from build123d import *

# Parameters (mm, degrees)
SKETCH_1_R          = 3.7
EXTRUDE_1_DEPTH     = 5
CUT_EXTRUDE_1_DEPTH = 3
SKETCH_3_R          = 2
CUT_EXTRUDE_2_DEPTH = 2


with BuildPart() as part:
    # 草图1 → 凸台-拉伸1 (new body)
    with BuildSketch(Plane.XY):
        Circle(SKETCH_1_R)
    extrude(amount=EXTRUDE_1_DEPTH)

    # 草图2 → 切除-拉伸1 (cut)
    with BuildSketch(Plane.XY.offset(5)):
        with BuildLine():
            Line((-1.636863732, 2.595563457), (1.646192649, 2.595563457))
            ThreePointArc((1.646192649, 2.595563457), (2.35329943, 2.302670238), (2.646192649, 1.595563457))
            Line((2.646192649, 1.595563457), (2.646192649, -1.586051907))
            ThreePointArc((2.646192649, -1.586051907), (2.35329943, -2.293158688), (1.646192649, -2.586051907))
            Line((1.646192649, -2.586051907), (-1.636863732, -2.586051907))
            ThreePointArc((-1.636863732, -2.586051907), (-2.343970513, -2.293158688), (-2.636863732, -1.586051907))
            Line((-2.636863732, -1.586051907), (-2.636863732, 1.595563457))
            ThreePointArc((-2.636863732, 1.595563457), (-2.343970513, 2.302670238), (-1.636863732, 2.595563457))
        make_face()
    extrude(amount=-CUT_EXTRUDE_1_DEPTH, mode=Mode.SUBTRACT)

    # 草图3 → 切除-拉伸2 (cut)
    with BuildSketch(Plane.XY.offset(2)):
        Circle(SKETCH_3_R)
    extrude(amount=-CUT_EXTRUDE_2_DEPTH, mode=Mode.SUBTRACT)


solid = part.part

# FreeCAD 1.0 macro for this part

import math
import FreeCAD as App
import Part
import Sketcher

V = App.Vector
Q = App.Units.Quantity

doc = App.newDocument("Part")
body = doc.addObject("PartDesign::Body", "Body")

# Sketch on XY plane
sketch1 = doc.addObject("Sketcher::SketchObject", "Sketch")
body.addObject(sketch1)
sketch1.AttachmentSupport = (doc.XY_Plane, [""])
sketch1.MapMode = "FlatFace"
sketch1.addGeometry(Part.Circle(V(0, 0, 0), V(0, 0, 1), 3.7), False)
sketch1.addConstraint(Sketcher.Constraint("Coincident", 0, 3, -1, 1))
sketch1.addConstraint(Sketcher.Constraint("Diameter", 0, Q("7.4 mm")))
pad1 = doc.addObject("PartDesign::Pad", "Pad")
body.addObject(pad1)
pad1.Profile = sketch1
pad1.Length = 5

# Sketch on XY plane
sketch2 = doc.addObject("Sketcher::SketchObject", "Sketch001")
body.addObject(sketch2)
sketch2.AttachmentSupport = (doc.XY_Plane, [""])
sketch2.MapMode = "FlatFace"
sketch2.AttachmentOffset = App.Placement(V(0, 0, 5), App.Rotation())
sketch2.addGeometry(Part.LineSegment(V(1.6, 2.6, 0), V(-1.6, 2.6, 0)), False)
sketch2.addGeometry(Part.ArcOfCircle(Part.Circle(V(-1.6, 1.6, 0), V(0, 0, 1), 1), math.radians(90), math.radians(180)), False)
sketch2.addGeometry(Part.LineSegment(V(-2.6, 1.6, 0), V(-2.6, -1.6, 0)), False)
sketch2.addGeometry(Part.ArcOfCircle(Part.Circle(V(-1.6, -1.6, 0), V(0, 0, 1), 1), math.radians(-180), math.radians(-90)), False)
sketch2.addGeometry(Part.LineSegment(V(-1.6, -2.6, 0), V(1.6, -2.6, 0)), False)
sketch2.addGeometry(Part.ArcOfCircle(Part.Circle(V(1.6, -1.6, 0), V(0, 0, 1), 1), math.radians(-90), math.radians(0)), False)
sketch2.addGeometry(Part.LineSegment(V(2.6, -1.6, 0), V(2.6, 1.6, 0)), False)
sketch2.addGeometry(Part.ArcOfCircle(Part.Circle(V(1.6, 1.6, 0), V(0, 0, 1), 1), math.radians(0), math.radians(90)), False)
sketch2.addConstraint(Sketcher.Constraint("Tangent", 0, 2, 1, 1))
sketch2.addConstraint(Sketcher.Constraint("Tangent", 1, 2, 2, 1))
sketch2.addConstraint(Sketcher.Constraint("Tangent", 2, 2, 3, 1))
sketch2.addConstraint(Sketcher.Constraint("Tangent", 3, 2, 4, 1))
sketch2.addConstraint(Sketcher.Constraint("Tangent", 4, 2, 5, 1))
sketch2.addConstraint(Sketcher.Constraint("Tangent", 5, 2, 6, 1))
sketch2.addConstraint(Sketcher.Constraint("Tangent", 6, 2, 7, 1))
sketch2.addConstraint(Sketcher.Constraint("Tangent", 7, 2, 0, 1))
sketch2.addConstraint(Sketcher.Constraint("Horizontal", 0))
sketch2.addConstraint(Sketcher.Constraint("Vertical", 2))
sketch2.addConstraint(Sketcher.Constraint("Horizontal", 4))
sketch2.addConstraint(Sketcher.Constraint("Vertical", 6))
sketch2.addConstraint(Sketcher.Constraint("Equal", 1, 3))
sketch2.addConstraint(Sketcher.Constraint("Equal", 3, 5))
sketch2.addConstraint(Sketcher.Constraint("Equal", 5, 7))
sketch2.addConstraint(Sketcher.Constraint("Radius", 1, Q("1 mm")))
sketch2.addConstraint(Sketcher.Constraint("DistanceX", 0, 2, 0, 1, Q("3.283056 mm")))
sketch2.addConstraint(Sketcher.Constraint("DistanceY", 2, 2, 2, 1, Q("3.181615 mm")))
sketch2.addConstraint(Sketcher.Constraint("DistanceY", 3, 3, -1, 1, Q("1.586052 mm")))
sketch2.addConstraint(Sketcher.Constraint("DistanceX", 1, 3, -1, 1, Q("1.636864 mm")))
pocket1 = doc.addObject("PartDesign::Pocket", "Pocket")
body.addObject(pocket1)
pocket1.Profile = sketch2
pocket1.Length = 3

# Sketch on XY plane
sketch3 = doc.addObject("Sketcher::SketchObject", "Sketch002")
body.addObject(sketch3)
sketch3.AttachmentSupport = (doc.XY_Plane, [""])
sketch3.MapMode = "FlatFace"
sketch3.AttachmentOffset = App.Placement(V(0, 0, 2), App.Rotation())
sketch3.addGeometry(Part.Circle(V(0, 0, 0), V(0, 0, 1), 2), False)
sketch3.addConstraint(Sketcher.Constraint("Coincident", 0, 3, -1, 1))
sketch3.addConstraint(Sketcher.Constraint("Diameter", 0, Q("4 mm")))
pocket2 = doc.addObject("PartDesign::Pocket", "Pocket001")
body.addObject(pocket2)
pocket2.Profile = sketch3
pocket2.Length = 2

doc.recompute()
